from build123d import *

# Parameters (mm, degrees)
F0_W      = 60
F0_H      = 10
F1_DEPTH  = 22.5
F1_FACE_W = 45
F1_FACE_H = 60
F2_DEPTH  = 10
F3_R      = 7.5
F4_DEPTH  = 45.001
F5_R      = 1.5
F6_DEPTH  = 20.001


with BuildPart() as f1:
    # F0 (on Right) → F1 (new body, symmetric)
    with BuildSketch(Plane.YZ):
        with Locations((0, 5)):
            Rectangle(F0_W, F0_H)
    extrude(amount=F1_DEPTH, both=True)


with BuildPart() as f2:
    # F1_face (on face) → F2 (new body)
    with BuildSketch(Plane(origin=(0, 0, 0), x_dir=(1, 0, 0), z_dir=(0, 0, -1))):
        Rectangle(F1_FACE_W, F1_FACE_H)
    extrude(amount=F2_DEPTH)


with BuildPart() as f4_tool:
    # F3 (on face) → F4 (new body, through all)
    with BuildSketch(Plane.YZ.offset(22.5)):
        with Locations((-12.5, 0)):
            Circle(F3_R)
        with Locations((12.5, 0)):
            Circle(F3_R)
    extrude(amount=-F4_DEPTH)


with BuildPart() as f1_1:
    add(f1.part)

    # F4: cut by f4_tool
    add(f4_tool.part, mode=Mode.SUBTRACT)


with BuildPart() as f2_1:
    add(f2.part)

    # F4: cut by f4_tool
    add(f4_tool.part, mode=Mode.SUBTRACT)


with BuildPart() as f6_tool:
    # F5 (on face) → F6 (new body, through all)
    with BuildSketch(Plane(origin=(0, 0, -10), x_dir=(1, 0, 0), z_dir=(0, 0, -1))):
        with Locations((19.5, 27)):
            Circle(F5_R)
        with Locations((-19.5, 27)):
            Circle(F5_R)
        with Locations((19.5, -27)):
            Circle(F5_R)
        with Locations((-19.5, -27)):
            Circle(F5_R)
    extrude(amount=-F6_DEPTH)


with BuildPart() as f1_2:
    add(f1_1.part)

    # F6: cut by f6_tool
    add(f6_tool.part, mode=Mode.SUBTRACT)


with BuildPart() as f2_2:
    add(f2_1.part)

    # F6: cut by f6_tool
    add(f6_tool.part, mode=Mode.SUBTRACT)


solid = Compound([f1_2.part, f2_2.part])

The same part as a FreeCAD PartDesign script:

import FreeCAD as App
import Part
import Sketcher
from FreeCAD import Vector
Q = App.Units.Quantity


def add_polygon(sketch, points):
    """Adds a closed chain of lines whose ends are joined by coincident constraints."""
    first, n = sketch.GeometryCount, len(points)
    for a, b in zip(points, points[1:] + points[:1]):
        sketch.addGeometry(Part.LineSegment(App.Vector(*a, 0), App.Vector(*b, 0)), False)
    for i in range(n):
        sketch.addConstraint(Sketcher.Constraint("Coincident", first + i, 2, first + (i + 1) % n, 1))

doc = App.newDocument("Part")
body = doc.addObject("PartDesign::Body", "Body")

# Sketch on YZ plane
sketch1 = body.newObject("Sketcher::SketchObject", "Sketch")
sketch1.AttachmentSupport = (doc.getObject("YZ_Plane"), [""])
sketch1.MapMode = "FlatFace"
add_polygon(sketch1, [(-30, 10), (-30, 0), (30, 0), (30, 10)])  # lines 0-3
sketch1.addConstraint(Sketcher.Constraint("Vertical", 0))
sketch1.addConstraint(Sketcher.Constraint("Horizontal", 1))
sketch1.addConstraint(Sketcher.Constraint("Vertical", 2))
sketch1.addConstraint(Sketcher.Constraint("Horizontal", 3))
sketch1.addConstraint(Sketcher.Constraint("Symmetric", 0, 2, 1, 2, -1, 1))
sketch1.addConstraint(Sketcher.Constraint("DistanceX", 1, 1, 1, 2, Q("60 mm")))
sketch1.addConstraint(Sketcher.Constraint("DistanceY", 0, 2, 0, 1, Q("10 mm")))
pad1 = body.newObject("PartDesign::Pad", "Pad")
pad1.Profile = sketch1
pad1.Length = 45
pad1.Midplane = True
body2 = doc.addObject("PartDesign::Body", "Body001")

# Sketch on XY plane
sketch2 = body2.newObject("Sketcher::SketchObject", "Sketch001")
sketch2.AttachmentSupport = (doc.getObject("XY_Plane001"), [""])
sketch2.MapMode = "FlatFace"
add_polygon(sketch2, [(-22, -30), (-22, 30), (22, 30), (22, -30)])  # lines 0-3
sketch2.addConstraint(Sketcher.Constraint("Vertical", 0))
sketch2.addConstraint(Sketcher.Constraint("Horizontal", 1))
sketch2.addConstraint(Sketcher.Constraint("Vertical", 2))
sketch2.addConstraint(Sketcher.Constraint("Horizontal", 3))
sketch2.addConstraint(Sketcher.Constraint("Symmetric", 0, 2, 2, 2, -1, 1))
sketch2.addConstraint(Sketcher.Constraint("DistanceX", 1, 1, 1, 2, Q("45 mm")))
sketch2.addConstraint(Sketcher.Constraint("DistanceY", 0, 1, 0, 2, Q("60 mm")))
pad2 = body2.newObject("PartDesign::Pad", "Pad001")
pad2.Profile = sketch2
pad2.Length = 10
pad2.Reversed = True
body3 = doc.addObject("PartDesign::Body", "Body002")
body3.AllowCompound = True

# Sketch on YZ plane
sketch3 = body3.newObject("Sketcher::SketchObject", "Sketch002")
sketch3.AttachmentSupport = (doc.getObject("YZ_Plane002"), [""])
sketch3.MapMode = "FlatFace"
sketch3.AttachmentOffset = App.Placement(Vector(0, 0, 22.5), App.Rotation())
sketch3.addGeometry(Part.Circle(Vector(-12, 0, 0), Vector(0, 0, 1), 8), False)
sketch3.addGeometry(Part.Circle(Vector(12, 0, 0), Vector(0, 0, 1), 8), False)
sketch3.addConstraint(Sketcher.Constraint("Equal", 0, 1))
sketch3.addConstraint(Sketcher.Constraint("Symmetric", 0, 3, 1, 3, -1, 1))
sketch3.addConstraint(Sketcher.Constraint("PointOnObject", 0, 3, -1))
sketch3.addConstraint(Sketcher.Constraint("Diameter", 0, Q("15 mm")))
sketch3.addConstraint(Sketcher.Constraint("DistanceX", 0, 3, 1, 3, Q("25 mm")))
pad3 = body3.newObject("PartDesign::Pad", "Pad002")
pad3.Profile = sketch3
pad3.Length = 45.001
pad3.Reversed = True
doc.recompute()

body4 = doc.addObject("PartDesign::Body", "Body003")
body4.BaseFeature = body3
boolean = body.newObject("PartDesign::Boolean", "Boolean")
boolean.Type = "Cut"
boolean.addObjects([body4])
doc.recompute()

boolean2 = body2.newObject("PartDesign::Boolean", "Boolean001")
boolean2.Type = "Cut"
boolean2.addObjects([body3])
body5 = doc.addObject("PartDesign::Body", "Body004")
body5.AllowCompound = True

# Sketch on XY plane
sketch4 = body5.newObject("Sketcher::SketchObject", "Sketch003")
sketch4.AttachmentSupport = (doc.getObject("XY_Plane004"), [""])
sketch4.MapMode = "FlatFace"
sketch4.AttachmentOffset = App.Placement(Vector(0, 0, -10), App.Rotation())
sketch4.addGeometry(Part.Circle(Vector(19.5, -27, 0), Vector(0, 0, 1), 1.5), False)
sketch4.addGeometry(Part.Circle(Vector(-19.5, -27, 0), Vector(0, 0, 1), 1.5), False)
sketch4.addGeometry(Part.Circle(Vector(19.5, 27, 0), Vector(0, 0, 1), 1.5), False)
sketch4.addGeometry(Part.Circle(Vector(-19.5, 27, 0), Vector(0, 0, 1), 1.5), False)
sketch4.addConstraint(Sketcher.Constraint("Equal", 0, 1))
sketch4.addConstraint(Sketcher.Constraint("Equal", 1, 2))
sketch4.addConstraint(Sketcher.Constraint("Equal", 2, 3))
sketch4.addConstraint(Sketcher.Constraint("Symmetric", 1, 3, 2, 3, -1, 1))
sketch4.addConstraint(Sketcher.Constraint("Symmetric", 0, 3, 3, 3, -1, 1))
sketch4.addConstraint(Sketcher.Constraint("Symmetric", 0, 3, 1, 3, -2))
sketch4.addConstraint(Sketcher.Constraint("Diameter", 0, Q("3 mm")))
sketch4.addConstraint(Sketcher.Constraint("DistanceY", 0, 3, -1, 1, Q("27 mm")))
sketch4.addConstraint(Sketcher.Constraint("DistanceX", 1, 3, 0, 3, Q("39 mm")))
pad4 = body5.newObject("PartDesign::Pad", "Pad003")
pad4.Profile = sketch4
pad4.Length = 20.001
doc.recompute()

body6 = doc.addObject("PartDesign::Body", "Body005")
body6.BaseFeature = body5
boolean3 = body.newObject("PartDesign::Boolean", "Boolean002")
boolean3.Type = "Cut"
boolean3.addObjects([body6])
doc.recompute()

boolean4 = body2.newObject("PartDesign::Boolean", "Boolean003")
boolean4.Type = "Cut"
boolean4.addObjects([body5])

doc.recompute()
